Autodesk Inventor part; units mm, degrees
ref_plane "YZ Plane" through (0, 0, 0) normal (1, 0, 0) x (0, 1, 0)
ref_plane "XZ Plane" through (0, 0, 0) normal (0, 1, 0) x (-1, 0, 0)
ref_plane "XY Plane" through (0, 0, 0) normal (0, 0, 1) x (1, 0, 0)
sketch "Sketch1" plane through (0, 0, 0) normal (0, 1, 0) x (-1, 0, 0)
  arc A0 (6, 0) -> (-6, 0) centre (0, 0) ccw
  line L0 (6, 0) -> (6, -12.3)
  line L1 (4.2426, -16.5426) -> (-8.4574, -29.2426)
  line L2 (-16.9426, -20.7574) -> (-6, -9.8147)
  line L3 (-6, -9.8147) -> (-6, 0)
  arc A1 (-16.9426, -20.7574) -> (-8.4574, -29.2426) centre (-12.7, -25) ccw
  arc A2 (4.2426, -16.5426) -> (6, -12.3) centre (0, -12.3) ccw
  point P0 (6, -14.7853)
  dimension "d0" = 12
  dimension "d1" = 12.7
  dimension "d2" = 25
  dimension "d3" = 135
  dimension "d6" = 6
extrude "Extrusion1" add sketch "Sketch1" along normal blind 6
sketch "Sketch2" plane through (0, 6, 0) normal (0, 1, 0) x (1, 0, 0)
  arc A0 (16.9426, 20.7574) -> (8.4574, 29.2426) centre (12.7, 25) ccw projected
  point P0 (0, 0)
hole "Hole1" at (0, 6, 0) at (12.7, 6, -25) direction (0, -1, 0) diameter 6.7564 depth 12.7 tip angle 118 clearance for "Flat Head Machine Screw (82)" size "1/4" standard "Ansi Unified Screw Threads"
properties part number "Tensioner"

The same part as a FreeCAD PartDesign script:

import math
import FreeCAD as App
import Part
import Sketcher

V = App.Vector
Q = App.Units.Quantity

doc = App.newDocument("Part")
body = doc.addObject("PartDesign::Body", "Body")

# Sketch on XZ plane
sketch1 = body.newObject("Sketcher::SketchObject", "Sketch")
sketch1.AttachmentSupport = (doc.getObject("XZ_Plane"), [""])
sketch1.MapMode = "FlatFace"
sketch1.addGeometry([
    Part.LineSegment(V(-6, -12.3, 0), V(-6, 0, 0)),  # 0
    Part.ArcOfCircle(Part.Circle(V(0, 0, 0), V(0, 0, 1), 6), math.radians(0), math.radians(180)),  # 1
    Part.LineSegment(V(6, 0, 0), V(6, -9.8, 0)),  # 2
    Part.LineSegment(V(6, -9.8, 0), V(16.9, -20.8, 0)),  # 3
    Part.ArcOfCircle(Part.Circle(V(12.7, -25, 0), V(0, 0, 1), 6), math.radians(-135), math.radians(45)),  # 4
    Part.LineSegment(V(8.5, -29.2, 0), V(-4.2, -16.5, 0)),  # 5
    Part.ArcOfCircle(Part.Circle(V(0, -12.3, 0), V(0, 0, 1), 6), math.radians(180), math.radians(225)),  # 6
], False)
sketch1.addConstraint([
    Sketcher.Constraint("Tangent", 0, 2, 1, 2),
    Sketcher.Constraint("Tangent", 1, 1, 2, 1),
    Sketcher.Constraint("Coincident", 2, 2, 3, 1),
    Sketcher.Constraint("Tangent", 3, 2, 4, 2),
    Sketcher.Constraint("Tangent", 4, 1, 5, 1),
    Sketcher.Constraint("Tangent", 5, 2, 6, 2),
    Sketcher.Constraint("Tangent", 6, 1, 0, 1),
    Sketcher.Constraint("Vertical", 0),
    Sketcher.Constraint("Vertical", 2),
    Sketcher.Constraint("Coincident", 1, 3, -1, 1),
    Sketcher.Constraint("Equal", 1, 4),
    Sketcher.Constraint("Equal", 4, 6),
    Sketcher.Constraint("Parallel", 3, 5),
    Sketcher.Constraint("Radius", 1, Q("6 mm")),
    Sketcher.Constraint("Angle", 5, Q("135 deg")),
    Sketcher.Constraint("DistanceY", 4, 3, -1, 1, Q("25 mm")),
    Sketcher.Constraint("DistanceX", -1, 1, 4, 3, Q("12.7 mm")),
])
pad1 = body.newObject("PartDesign::Pad", "Pad")
pad1.Profile = sketch1
pad1.Length = 6
pad1.Reversed = True

# Sketch on XZ plane
sketch2 = body.newObject("Sketcher::SketchObject", "Sketch001")
sketch2.AttachmentSupport = (doc.getObject("XZ_Plane"), [""])
sketch2.MapMode = "FlatFace"
sketch2.AttachmentOffset = App.Placement(V(0, 0, -6), App.Rotation())
sketch2.addGeometry([
    Part.Circle(V(0, 0, 0), V(0, 0, 1), 3.4),
    Part.Circle(V(12.7, -25, 0), V(0, 0, 1), 3.4),
], False)
sketch2.addConstraint([
    Sketcher.Constraint("Coincident", 0, 3, -1, 1),
    Sketcher.Constraint("Equal", 0, 1),
    Sketcher.Constraint("DistanceY", 1, 3, -1, 1, Q("25 mm")),
    Sketcher.Constraint("Diameter", 0, Q("6.7564 mm")),
    Sketcher.Constraint("DistanceX", -1, 1, 1, 3, Q("12.7 mm")),
])
doc.recompute()
hole = body.newObject("PartDesign::Hole", "Hole")
hole.Profile = sketch2
hole.ThreadType = "None"
hole.Diameter = 6.7564
hole.DepthType = "Dimension"
hole.Depth = 12.7
hole.DrillPoint = "Angled"
hole.DrillPointAngle = 118
hole.Reversed = True

doc.recompute()
